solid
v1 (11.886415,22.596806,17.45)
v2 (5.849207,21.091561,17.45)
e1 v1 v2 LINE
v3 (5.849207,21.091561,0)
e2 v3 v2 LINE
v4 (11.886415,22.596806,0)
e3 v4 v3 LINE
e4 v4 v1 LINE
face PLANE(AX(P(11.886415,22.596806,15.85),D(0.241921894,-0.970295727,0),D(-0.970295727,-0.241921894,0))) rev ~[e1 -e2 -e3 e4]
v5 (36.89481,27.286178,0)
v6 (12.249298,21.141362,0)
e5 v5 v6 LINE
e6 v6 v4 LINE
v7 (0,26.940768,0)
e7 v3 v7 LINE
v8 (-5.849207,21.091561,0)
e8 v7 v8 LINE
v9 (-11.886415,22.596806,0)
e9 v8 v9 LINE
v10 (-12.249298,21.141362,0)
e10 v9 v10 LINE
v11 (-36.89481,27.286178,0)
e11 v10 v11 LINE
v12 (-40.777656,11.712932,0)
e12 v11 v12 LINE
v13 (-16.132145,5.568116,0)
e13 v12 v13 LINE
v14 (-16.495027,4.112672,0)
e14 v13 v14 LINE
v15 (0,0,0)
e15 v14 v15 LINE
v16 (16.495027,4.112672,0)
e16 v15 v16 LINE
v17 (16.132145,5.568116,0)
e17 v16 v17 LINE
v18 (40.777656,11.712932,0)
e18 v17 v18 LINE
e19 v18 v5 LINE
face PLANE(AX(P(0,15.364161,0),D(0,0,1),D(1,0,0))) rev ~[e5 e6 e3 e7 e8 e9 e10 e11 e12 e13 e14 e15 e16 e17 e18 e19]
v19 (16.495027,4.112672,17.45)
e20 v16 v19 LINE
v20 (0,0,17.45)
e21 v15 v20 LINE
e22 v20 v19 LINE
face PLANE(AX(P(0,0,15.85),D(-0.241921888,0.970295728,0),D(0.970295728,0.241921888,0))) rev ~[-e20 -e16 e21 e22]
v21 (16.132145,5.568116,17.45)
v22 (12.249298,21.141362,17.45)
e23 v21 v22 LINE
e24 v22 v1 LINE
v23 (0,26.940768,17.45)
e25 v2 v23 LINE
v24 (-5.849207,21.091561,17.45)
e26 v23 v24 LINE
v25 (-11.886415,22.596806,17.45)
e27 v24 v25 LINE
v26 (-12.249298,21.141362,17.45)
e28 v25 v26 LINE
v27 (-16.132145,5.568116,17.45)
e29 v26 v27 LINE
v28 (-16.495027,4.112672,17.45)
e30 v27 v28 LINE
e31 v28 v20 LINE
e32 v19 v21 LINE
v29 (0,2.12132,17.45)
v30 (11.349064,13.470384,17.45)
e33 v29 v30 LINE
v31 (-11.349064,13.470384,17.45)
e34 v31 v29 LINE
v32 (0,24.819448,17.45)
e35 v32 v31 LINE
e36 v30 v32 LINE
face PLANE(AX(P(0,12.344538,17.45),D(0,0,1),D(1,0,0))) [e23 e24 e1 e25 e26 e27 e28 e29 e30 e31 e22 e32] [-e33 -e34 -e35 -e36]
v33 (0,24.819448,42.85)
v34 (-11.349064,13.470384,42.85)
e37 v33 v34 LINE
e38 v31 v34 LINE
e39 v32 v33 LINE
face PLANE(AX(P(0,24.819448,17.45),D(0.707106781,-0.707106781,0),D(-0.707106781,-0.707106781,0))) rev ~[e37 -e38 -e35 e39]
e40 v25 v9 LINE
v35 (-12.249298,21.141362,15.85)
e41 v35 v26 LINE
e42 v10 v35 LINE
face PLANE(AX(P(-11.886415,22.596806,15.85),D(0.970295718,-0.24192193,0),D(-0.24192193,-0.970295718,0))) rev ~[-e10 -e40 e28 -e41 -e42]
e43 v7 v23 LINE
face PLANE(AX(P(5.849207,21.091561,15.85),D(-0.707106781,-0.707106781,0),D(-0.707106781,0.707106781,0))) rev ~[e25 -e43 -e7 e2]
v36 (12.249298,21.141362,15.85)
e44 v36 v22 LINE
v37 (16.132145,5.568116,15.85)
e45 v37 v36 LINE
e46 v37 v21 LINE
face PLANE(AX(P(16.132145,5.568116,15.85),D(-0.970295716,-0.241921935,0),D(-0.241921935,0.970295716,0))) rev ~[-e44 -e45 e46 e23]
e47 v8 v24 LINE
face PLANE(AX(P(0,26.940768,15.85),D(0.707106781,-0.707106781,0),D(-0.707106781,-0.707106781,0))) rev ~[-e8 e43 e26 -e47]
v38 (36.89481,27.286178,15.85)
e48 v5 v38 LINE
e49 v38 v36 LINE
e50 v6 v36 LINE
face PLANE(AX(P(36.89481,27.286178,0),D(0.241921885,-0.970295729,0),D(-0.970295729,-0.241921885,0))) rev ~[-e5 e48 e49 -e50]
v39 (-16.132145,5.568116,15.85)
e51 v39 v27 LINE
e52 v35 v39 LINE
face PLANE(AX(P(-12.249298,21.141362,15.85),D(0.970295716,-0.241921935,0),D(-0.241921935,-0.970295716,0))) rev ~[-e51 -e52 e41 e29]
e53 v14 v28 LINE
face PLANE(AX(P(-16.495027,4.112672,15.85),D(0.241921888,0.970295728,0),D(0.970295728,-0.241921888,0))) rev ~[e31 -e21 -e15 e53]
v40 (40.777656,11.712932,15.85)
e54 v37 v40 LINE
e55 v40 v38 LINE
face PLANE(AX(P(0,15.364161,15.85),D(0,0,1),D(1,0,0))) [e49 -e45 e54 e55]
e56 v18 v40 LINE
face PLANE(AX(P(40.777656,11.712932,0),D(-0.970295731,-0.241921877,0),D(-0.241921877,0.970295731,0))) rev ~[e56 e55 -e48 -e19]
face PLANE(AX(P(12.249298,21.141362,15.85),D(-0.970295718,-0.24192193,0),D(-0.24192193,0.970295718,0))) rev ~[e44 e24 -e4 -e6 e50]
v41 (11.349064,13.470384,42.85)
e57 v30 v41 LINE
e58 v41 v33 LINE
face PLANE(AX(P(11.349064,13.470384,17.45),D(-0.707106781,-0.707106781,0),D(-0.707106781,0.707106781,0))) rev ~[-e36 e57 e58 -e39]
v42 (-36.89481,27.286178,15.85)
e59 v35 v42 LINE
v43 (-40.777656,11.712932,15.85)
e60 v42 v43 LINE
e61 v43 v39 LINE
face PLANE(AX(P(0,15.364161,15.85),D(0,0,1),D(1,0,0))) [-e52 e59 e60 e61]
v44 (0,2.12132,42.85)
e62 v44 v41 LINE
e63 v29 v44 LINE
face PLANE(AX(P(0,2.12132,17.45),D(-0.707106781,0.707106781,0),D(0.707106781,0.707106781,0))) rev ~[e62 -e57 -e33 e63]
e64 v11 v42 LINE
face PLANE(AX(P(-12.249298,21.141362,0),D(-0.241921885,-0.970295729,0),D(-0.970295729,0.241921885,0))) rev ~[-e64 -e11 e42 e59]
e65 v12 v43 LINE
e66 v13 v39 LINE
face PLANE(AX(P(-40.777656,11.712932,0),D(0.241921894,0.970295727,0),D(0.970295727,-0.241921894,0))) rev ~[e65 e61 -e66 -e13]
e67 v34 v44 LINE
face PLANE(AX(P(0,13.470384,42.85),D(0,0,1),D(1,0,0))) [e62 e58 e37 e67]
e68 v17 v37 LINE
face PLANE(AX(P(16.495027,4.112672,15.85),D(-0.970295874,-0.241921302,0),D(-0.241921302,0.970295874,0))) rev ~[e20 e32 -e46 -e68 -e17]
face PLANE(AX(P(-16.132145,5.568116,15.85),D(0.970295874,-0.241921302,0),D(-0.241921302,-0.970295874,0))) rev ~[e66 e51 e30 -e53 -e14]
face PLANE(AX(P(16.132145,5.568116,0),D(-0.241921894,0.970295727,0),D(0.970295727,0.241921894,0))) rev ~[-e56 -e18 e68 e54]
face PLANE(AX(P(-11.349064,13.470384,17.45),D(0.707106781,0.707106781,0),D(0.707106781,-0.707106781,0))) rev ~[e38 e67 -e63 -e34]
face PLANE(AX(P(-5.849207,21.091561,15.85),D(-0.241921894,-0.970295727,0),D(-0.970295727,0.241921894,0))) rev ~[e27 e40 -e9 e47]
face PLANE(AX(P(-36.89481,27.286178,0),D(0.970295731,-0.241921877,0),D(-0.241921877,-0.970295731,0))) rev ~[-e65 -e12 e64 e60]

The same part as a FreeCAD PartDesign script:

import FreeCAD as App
import Part
import Sketcher
Q = App.Units.Quantity

doc = App.newDocument("Part")
body = doc.addObject("PartDesign::Body", "Body")

sketch1 = body.newObject("Sketcher::SketchObject", "Sketch")
sketch1.AttachmentSupport = (doc.getObject("XY_Plane"), [""])
sketch1.MapMode = "FlatFace"
sketch1.addGeometry([
    Part.LineSegment(App.Vector(-16.5, 4.1, 0), App.Vector(0, 0, 0)),
    Part.LineSegment(App.Vector(0, 0, 0), App.Vector(16.5, 4.1, 0)),
    Part.LineSegment(App.Vector(16.5, 4.1, 0), App.Vector(16.1, 5.6, 0)),
    Part.LineSegment(App.Vector(16.1, 5.6, 0), App.Vector(40.8, 11.7, 0)),
    Part.LineSegment(App.Vector(40.8, 11.7, 0), App.Vector(36.9, 27.3, 0)),
    Part.LineSegment(App.Vector(36.9, 27.3, 0), App.Vector(12.2, 21.1, 0)),
    Part.LineSegment(App.Vector(12.2, 21.1, 0), App.Vector(11.9, 22.6, 0)),
    Part.LineSegment(App.Vector(11.9, 22.6, 0), App.Vector(5.8, 21.1, 0)),
    Part.LineSegment(App.Vector(5.8, 21.1, 0), App.Vector(0, 26.9, 0)),
    Part.LineSegment(App.Vector(0, 26.9, 0), App.Vector(-5.8, 21.1, 0)),
    Part.LineSegment(App.Vector(-5.8, 21.1, 0), App.Vector(-11.9, 22.6, 0)),
    Part.LineSegment(App.Vector(-11.9, 22.6, 0), App.Vector(-12.2, 21.1, 0)),
    Part.LineSegment(App.Vector(-12.2, 21.1, 0), App.Vector(-36.9, 27.3, 0)),
    Part.LineSegment(App.Vector(-36.9, 27.3, 0), App.Vector(-40.8, 11.7, 0)),
    Part.LineSegment(App.Vector(-40.8, 11.7, 0), App.Vector(-16.1, 5.6, 0)),
    Part.LineSegment(App.Vector(-16.1, 5.6, 0), App.Vector(-16.5, 4.1, 0)),
], False)
sketch1.addConstraint([
    Sketcher.Constraint("Coincident", 0, 2, 1, 1),
    Sketcher.Constraint("Coincident", 1, 2, 2, 1),
    Sketcher.Constraint("Coincident", 2, 2, 3, 1),
    Sketcher.Constraint("Coincident", 3, 2, 4, 1),
    Sketcher.Constraint("Coincident", 4, 2, 5, 1),
    Sketcher.Constraint("Coincident", 5, 2, 6, 1),
    Sketcher.Constraint("Coincident", 6, 2, 7, 1),
    Sketcher.Constraint("Coincident", 7, 2, 8, 1),
    Sketcher.Constraint("Coincident", 8, 2, 9, 1),
    Sketcher.Constraint("Coincident", 9, 2, 10, 1),
    Sketcher.Constraint("Coincident", 10, 2, 11, 1),
    Sketcher.Constraint("Coincident", 11, 2, 12, 1),
    Sketcher.Constraint("Coincident", 12, 2, 13, 1),
    Sketcher.Constraint("Coincident", 13, 2, 14, 1),
    Sketcher.Constraint("Coincident", 14, 2, 15, 1),
    Sketcher.Constraint("Coincident", 15, 2, 0, 1),
    Sketcher.Constraint("Coincident", 0, 2, -1, 1),
    Sketcher.Constraint("Symmetric", 7, 2, 9, 2, -2),
    Sketcher.Constraint("Symmetric", 6, 2, 10, 2, -2),
    Sketcher.Constraint("Symmetric", 5, 2, 11, 2, -2),
    Sketcher.Constraint("Symmetric", 4, 2, 12, 2, -2),
    Sketcher.Constraint("Symmetric", 3, 2, 13, 2, -2),
    Sketcher.Constraint("Symmetric", 2, 2, 14, 2, -2),
    Sketcher.Constraint("Symmetric", 1, 2, 15, 2, -2),
    Sketcher.Constraint("PointOnObject", 8, 2, -2),
    Sketcher.Constraint("Perpendicular", 1, 2),
    Sketcher.Constraint("Perpendicular", 2, 3),
    Sketcher.Constraint("Perpendicular", 3, 4),
    Sketcher.Constraint("Perpendicular", 4, 5),
    Sketcher.Constraint("Perpendicular", 5, 6),
    Sketcher.Constraint("Perpendicular", 6, 7),
    Sketcher.Constraint("Perpendicular", 8, 9),
    Sketcher.Constraint("Equal", 3, 5),
    Sketcher.Constraint("Equal", 2, 6),
    Sketcher.Constraint("Angle", 0, Q("-14 deg")),
    Sketcher.Constraint("Distance", 0, Q("17 mm")),
    Sketcher.Constraint("Distance", 2, Q("1.5 mm")),
    Sketcher.Constraint("Distance", 3, Q("25.4 mm")),
    Sketcher.Constraint("Distance", 4, Q("16.05 mm")),
    Sketcher.Constraint("DistanceY", 7, 2, 5, 2, Q("0.049801 mm")),
])
pad1 = body.newObject("PartDesign::Pad", "Pad")
pad1.Profile = sketch1
pad1.Length = 15.85

sketch2 = body.newObject("Sketcher::SketchObject", "Sketch001")
sketch2.AttachmentSupport = (doc.getObject("XY_Plane"), [""])
sketch2.MapMode = "FlatFace"
sketch2.AttachmentOffset = App.Placement(App.Vector(0, 0, 15.85), App.Rotation())
sketch2.addGeometry([
    Part.LineSegment(App.Vector(-16.1, 5.6, 0), App.Vector(-16.5, 4.1, 0)),
    Part.LineSegment(App.Vector(-16.5, 4.1, 0), App.Vector(0, 0, 0)),
    Part.LineSegment(App.Vector(0, 0, 0), App.Vector(16.5, 4.1, 0)),
    Part.LineSegment(App.Vector(16.5, 4.1, 0), App.Vector(16.1, 5.6, 0)),
    Part.LineSegment(App.Vector(16.1, 5.6, 0), App.Vector(12.2, 21.1, 0)),
    Part.LineSegment(App.Vector(12.2, 21.1, 0), App.Vector(11.9, 22.6, 0)),
    Part.LineSegment(App.Vector(11.9, 22.6, 0), App.Vector(5.8, 21.1, 0)),
    Part.LineSegment(App.Vector(5.8, 21.1, 0), App.Vector(0, 26.9, 0)),
    Part.LineSegment(App.Vector(0, 26.9, 0), App.Vector(-5.8, 21.1, 0)),
    Part.LineSegment(App.Vector(-5.8, 21.1, 0), App.Vector(-11.9, 22.6, 0)),
    Part.LineSegment(App.Vector(-11.9, 22.6, 0), App.Vector(-12.2, 21.1, 0)),
    Part.LineSegment(App.Vector(-12.2, 21.1, 0), App.Vector(-16.1, 5.6, 0)),
], False)
sketch2.addConstraint([
    Sketcher.Constraint("Coincident", 0, 2, 1, 1),
    Sketcher.Constraint("Coincident", 1, 2, 2, 1),
    Sketcher.Constraint("Coincident", 2, 2, 3, 1),
    Sketcher.Constraint("Coincident", 3, 2, 4, 1),
    Sketcher.Constraint("Coincident", 4, 2, 5, 1),
    Sketcher.Constraint("Coincident", 5, 2, 6, 1),
    Sketcher.Constraint("Coincident", 6, 2, 7, 1),
    Sketcher.Constraint("Coincident", 7, 2, 8, 1),
    Sketcher.Constraint("Coincident", 8, 2, 9, 1),
    Sketcher.Constraint("Coincident", 9, 2, 10, 1),
    Sketcher.Constraint("Coincident", 10, 2, 11, 1),
    Sketcher.Constraint("Coincident", 11, 2, 0, 1),
    Sketcher.Constraint("Coincident", 1, 2, -1, 1),
    Sketcher.Constraint("Symmetric", 0, 2, 2, 2, -2),
    Sketcher.Constraint("Symmetric", 6, 2, 8, 2, -2),
    Sketcher.Constraint("Symmetric", 5, 2, 9, 2, -2),
    Sketcher.Constraint("Symmetric", 4, 2, 10, 2, -2),
    Sketcher.Constraint("Symmetric", 3, 2, 11, 2, -2),
    Sketcher.Constraint("PointOnObject", 7, 2, -2),
    Sketcher.Constraint("Perpendicular", 0, 1),
    Sketcher.Constraint("Parallel", 3, 4),
    Sketcher.Constraint("Parallel", 4, 5),
    Sketcher.Constraint("Perpendicular", 5, 6),
    Sketcher.Constraint("Perpendicular", 7, 8),
    Sketcher.Constraint("Equal", 3, 5),
    Sketcher.Constraint("Angle", 1, Q("-14 deg")),
    Sketcher.Constraint("Distance", 1, Q("17 mm")),
    Sketcher.Constraint("Distance", 0, Q("1.5 mm")),
    Sketcher.Constraint("Distance", 4, Q("16.05 mm")),
    Sketcher.Constraint("DistanceY", 6, 2, 4, 2, Q("0.049801 mm")),
])
pad2 = body.newObject("PartDesign::Pad", "Pad001")
pad2.Profile = sketch2
pad2.Length = 1.6

sketch3 = body.newObject("Sketcher::SketchObject", "Sketch002")
sketch3.AttachmentSupport = (doc.getObject("XY_Plane"), [""])
sketch3.MapMode = "FlatFace"
sketch3.AttachmentOffset = App.Placement(App.Vector(0, 0, 17.45), App.Rotation())
sketch3.addGeometry([
    Part.LineSegment(App.Vector(-11, 13, 0), App.Vector(0, 2, 0)),
    Part.LineSegment(App.Vector(0, 2, 0), App.Vector(11, 13, 0)),
    Part.LineSegment(App.Vector(11, 13, 0), App.Vector(0, 25, 0)),
    Part.LineSegment(App.Vector(0, 25, 0), App.Vector(-11, 13, 0)),
], False)
sketch3.addConstraint([
    Sketcher.Constraint("Coincident", 0, 2, 1, 1),
    Sketcher.Constraint("Coincident", 1, 2, 2, 1),
    Sketcher.Constraint("Coincident", 2, 2, 3, 1),
    Sketcher.Constraint("Coincident", 3, 2, 0, 1),
    Sketcher.Constraint("Symmetric", 1, 2, 3, 2, -2),
    Sketcher.Constraint("PointOnObject", 0, 2, -2),
    Sketcher.Constraint("PointOnObject", 2, 2, -2),
    Sketcher.Constraint("Perpendicular", 0, 1),
    Sketcher.Constraint("Perpendicular", 1, 2),
    Sketcher.Constraint("Distance", 0, Q("16.05 mm")),
    Sketcher.Constraint("DistanceY", -1, 1, 0, 2, Q("2.12132 mm")),
])
pad3 = body.newObject("PartDesign::Pad", "Pad002")
pad3.Profile = sketch3
pad3.Length = 25.4

doc.recompute()
